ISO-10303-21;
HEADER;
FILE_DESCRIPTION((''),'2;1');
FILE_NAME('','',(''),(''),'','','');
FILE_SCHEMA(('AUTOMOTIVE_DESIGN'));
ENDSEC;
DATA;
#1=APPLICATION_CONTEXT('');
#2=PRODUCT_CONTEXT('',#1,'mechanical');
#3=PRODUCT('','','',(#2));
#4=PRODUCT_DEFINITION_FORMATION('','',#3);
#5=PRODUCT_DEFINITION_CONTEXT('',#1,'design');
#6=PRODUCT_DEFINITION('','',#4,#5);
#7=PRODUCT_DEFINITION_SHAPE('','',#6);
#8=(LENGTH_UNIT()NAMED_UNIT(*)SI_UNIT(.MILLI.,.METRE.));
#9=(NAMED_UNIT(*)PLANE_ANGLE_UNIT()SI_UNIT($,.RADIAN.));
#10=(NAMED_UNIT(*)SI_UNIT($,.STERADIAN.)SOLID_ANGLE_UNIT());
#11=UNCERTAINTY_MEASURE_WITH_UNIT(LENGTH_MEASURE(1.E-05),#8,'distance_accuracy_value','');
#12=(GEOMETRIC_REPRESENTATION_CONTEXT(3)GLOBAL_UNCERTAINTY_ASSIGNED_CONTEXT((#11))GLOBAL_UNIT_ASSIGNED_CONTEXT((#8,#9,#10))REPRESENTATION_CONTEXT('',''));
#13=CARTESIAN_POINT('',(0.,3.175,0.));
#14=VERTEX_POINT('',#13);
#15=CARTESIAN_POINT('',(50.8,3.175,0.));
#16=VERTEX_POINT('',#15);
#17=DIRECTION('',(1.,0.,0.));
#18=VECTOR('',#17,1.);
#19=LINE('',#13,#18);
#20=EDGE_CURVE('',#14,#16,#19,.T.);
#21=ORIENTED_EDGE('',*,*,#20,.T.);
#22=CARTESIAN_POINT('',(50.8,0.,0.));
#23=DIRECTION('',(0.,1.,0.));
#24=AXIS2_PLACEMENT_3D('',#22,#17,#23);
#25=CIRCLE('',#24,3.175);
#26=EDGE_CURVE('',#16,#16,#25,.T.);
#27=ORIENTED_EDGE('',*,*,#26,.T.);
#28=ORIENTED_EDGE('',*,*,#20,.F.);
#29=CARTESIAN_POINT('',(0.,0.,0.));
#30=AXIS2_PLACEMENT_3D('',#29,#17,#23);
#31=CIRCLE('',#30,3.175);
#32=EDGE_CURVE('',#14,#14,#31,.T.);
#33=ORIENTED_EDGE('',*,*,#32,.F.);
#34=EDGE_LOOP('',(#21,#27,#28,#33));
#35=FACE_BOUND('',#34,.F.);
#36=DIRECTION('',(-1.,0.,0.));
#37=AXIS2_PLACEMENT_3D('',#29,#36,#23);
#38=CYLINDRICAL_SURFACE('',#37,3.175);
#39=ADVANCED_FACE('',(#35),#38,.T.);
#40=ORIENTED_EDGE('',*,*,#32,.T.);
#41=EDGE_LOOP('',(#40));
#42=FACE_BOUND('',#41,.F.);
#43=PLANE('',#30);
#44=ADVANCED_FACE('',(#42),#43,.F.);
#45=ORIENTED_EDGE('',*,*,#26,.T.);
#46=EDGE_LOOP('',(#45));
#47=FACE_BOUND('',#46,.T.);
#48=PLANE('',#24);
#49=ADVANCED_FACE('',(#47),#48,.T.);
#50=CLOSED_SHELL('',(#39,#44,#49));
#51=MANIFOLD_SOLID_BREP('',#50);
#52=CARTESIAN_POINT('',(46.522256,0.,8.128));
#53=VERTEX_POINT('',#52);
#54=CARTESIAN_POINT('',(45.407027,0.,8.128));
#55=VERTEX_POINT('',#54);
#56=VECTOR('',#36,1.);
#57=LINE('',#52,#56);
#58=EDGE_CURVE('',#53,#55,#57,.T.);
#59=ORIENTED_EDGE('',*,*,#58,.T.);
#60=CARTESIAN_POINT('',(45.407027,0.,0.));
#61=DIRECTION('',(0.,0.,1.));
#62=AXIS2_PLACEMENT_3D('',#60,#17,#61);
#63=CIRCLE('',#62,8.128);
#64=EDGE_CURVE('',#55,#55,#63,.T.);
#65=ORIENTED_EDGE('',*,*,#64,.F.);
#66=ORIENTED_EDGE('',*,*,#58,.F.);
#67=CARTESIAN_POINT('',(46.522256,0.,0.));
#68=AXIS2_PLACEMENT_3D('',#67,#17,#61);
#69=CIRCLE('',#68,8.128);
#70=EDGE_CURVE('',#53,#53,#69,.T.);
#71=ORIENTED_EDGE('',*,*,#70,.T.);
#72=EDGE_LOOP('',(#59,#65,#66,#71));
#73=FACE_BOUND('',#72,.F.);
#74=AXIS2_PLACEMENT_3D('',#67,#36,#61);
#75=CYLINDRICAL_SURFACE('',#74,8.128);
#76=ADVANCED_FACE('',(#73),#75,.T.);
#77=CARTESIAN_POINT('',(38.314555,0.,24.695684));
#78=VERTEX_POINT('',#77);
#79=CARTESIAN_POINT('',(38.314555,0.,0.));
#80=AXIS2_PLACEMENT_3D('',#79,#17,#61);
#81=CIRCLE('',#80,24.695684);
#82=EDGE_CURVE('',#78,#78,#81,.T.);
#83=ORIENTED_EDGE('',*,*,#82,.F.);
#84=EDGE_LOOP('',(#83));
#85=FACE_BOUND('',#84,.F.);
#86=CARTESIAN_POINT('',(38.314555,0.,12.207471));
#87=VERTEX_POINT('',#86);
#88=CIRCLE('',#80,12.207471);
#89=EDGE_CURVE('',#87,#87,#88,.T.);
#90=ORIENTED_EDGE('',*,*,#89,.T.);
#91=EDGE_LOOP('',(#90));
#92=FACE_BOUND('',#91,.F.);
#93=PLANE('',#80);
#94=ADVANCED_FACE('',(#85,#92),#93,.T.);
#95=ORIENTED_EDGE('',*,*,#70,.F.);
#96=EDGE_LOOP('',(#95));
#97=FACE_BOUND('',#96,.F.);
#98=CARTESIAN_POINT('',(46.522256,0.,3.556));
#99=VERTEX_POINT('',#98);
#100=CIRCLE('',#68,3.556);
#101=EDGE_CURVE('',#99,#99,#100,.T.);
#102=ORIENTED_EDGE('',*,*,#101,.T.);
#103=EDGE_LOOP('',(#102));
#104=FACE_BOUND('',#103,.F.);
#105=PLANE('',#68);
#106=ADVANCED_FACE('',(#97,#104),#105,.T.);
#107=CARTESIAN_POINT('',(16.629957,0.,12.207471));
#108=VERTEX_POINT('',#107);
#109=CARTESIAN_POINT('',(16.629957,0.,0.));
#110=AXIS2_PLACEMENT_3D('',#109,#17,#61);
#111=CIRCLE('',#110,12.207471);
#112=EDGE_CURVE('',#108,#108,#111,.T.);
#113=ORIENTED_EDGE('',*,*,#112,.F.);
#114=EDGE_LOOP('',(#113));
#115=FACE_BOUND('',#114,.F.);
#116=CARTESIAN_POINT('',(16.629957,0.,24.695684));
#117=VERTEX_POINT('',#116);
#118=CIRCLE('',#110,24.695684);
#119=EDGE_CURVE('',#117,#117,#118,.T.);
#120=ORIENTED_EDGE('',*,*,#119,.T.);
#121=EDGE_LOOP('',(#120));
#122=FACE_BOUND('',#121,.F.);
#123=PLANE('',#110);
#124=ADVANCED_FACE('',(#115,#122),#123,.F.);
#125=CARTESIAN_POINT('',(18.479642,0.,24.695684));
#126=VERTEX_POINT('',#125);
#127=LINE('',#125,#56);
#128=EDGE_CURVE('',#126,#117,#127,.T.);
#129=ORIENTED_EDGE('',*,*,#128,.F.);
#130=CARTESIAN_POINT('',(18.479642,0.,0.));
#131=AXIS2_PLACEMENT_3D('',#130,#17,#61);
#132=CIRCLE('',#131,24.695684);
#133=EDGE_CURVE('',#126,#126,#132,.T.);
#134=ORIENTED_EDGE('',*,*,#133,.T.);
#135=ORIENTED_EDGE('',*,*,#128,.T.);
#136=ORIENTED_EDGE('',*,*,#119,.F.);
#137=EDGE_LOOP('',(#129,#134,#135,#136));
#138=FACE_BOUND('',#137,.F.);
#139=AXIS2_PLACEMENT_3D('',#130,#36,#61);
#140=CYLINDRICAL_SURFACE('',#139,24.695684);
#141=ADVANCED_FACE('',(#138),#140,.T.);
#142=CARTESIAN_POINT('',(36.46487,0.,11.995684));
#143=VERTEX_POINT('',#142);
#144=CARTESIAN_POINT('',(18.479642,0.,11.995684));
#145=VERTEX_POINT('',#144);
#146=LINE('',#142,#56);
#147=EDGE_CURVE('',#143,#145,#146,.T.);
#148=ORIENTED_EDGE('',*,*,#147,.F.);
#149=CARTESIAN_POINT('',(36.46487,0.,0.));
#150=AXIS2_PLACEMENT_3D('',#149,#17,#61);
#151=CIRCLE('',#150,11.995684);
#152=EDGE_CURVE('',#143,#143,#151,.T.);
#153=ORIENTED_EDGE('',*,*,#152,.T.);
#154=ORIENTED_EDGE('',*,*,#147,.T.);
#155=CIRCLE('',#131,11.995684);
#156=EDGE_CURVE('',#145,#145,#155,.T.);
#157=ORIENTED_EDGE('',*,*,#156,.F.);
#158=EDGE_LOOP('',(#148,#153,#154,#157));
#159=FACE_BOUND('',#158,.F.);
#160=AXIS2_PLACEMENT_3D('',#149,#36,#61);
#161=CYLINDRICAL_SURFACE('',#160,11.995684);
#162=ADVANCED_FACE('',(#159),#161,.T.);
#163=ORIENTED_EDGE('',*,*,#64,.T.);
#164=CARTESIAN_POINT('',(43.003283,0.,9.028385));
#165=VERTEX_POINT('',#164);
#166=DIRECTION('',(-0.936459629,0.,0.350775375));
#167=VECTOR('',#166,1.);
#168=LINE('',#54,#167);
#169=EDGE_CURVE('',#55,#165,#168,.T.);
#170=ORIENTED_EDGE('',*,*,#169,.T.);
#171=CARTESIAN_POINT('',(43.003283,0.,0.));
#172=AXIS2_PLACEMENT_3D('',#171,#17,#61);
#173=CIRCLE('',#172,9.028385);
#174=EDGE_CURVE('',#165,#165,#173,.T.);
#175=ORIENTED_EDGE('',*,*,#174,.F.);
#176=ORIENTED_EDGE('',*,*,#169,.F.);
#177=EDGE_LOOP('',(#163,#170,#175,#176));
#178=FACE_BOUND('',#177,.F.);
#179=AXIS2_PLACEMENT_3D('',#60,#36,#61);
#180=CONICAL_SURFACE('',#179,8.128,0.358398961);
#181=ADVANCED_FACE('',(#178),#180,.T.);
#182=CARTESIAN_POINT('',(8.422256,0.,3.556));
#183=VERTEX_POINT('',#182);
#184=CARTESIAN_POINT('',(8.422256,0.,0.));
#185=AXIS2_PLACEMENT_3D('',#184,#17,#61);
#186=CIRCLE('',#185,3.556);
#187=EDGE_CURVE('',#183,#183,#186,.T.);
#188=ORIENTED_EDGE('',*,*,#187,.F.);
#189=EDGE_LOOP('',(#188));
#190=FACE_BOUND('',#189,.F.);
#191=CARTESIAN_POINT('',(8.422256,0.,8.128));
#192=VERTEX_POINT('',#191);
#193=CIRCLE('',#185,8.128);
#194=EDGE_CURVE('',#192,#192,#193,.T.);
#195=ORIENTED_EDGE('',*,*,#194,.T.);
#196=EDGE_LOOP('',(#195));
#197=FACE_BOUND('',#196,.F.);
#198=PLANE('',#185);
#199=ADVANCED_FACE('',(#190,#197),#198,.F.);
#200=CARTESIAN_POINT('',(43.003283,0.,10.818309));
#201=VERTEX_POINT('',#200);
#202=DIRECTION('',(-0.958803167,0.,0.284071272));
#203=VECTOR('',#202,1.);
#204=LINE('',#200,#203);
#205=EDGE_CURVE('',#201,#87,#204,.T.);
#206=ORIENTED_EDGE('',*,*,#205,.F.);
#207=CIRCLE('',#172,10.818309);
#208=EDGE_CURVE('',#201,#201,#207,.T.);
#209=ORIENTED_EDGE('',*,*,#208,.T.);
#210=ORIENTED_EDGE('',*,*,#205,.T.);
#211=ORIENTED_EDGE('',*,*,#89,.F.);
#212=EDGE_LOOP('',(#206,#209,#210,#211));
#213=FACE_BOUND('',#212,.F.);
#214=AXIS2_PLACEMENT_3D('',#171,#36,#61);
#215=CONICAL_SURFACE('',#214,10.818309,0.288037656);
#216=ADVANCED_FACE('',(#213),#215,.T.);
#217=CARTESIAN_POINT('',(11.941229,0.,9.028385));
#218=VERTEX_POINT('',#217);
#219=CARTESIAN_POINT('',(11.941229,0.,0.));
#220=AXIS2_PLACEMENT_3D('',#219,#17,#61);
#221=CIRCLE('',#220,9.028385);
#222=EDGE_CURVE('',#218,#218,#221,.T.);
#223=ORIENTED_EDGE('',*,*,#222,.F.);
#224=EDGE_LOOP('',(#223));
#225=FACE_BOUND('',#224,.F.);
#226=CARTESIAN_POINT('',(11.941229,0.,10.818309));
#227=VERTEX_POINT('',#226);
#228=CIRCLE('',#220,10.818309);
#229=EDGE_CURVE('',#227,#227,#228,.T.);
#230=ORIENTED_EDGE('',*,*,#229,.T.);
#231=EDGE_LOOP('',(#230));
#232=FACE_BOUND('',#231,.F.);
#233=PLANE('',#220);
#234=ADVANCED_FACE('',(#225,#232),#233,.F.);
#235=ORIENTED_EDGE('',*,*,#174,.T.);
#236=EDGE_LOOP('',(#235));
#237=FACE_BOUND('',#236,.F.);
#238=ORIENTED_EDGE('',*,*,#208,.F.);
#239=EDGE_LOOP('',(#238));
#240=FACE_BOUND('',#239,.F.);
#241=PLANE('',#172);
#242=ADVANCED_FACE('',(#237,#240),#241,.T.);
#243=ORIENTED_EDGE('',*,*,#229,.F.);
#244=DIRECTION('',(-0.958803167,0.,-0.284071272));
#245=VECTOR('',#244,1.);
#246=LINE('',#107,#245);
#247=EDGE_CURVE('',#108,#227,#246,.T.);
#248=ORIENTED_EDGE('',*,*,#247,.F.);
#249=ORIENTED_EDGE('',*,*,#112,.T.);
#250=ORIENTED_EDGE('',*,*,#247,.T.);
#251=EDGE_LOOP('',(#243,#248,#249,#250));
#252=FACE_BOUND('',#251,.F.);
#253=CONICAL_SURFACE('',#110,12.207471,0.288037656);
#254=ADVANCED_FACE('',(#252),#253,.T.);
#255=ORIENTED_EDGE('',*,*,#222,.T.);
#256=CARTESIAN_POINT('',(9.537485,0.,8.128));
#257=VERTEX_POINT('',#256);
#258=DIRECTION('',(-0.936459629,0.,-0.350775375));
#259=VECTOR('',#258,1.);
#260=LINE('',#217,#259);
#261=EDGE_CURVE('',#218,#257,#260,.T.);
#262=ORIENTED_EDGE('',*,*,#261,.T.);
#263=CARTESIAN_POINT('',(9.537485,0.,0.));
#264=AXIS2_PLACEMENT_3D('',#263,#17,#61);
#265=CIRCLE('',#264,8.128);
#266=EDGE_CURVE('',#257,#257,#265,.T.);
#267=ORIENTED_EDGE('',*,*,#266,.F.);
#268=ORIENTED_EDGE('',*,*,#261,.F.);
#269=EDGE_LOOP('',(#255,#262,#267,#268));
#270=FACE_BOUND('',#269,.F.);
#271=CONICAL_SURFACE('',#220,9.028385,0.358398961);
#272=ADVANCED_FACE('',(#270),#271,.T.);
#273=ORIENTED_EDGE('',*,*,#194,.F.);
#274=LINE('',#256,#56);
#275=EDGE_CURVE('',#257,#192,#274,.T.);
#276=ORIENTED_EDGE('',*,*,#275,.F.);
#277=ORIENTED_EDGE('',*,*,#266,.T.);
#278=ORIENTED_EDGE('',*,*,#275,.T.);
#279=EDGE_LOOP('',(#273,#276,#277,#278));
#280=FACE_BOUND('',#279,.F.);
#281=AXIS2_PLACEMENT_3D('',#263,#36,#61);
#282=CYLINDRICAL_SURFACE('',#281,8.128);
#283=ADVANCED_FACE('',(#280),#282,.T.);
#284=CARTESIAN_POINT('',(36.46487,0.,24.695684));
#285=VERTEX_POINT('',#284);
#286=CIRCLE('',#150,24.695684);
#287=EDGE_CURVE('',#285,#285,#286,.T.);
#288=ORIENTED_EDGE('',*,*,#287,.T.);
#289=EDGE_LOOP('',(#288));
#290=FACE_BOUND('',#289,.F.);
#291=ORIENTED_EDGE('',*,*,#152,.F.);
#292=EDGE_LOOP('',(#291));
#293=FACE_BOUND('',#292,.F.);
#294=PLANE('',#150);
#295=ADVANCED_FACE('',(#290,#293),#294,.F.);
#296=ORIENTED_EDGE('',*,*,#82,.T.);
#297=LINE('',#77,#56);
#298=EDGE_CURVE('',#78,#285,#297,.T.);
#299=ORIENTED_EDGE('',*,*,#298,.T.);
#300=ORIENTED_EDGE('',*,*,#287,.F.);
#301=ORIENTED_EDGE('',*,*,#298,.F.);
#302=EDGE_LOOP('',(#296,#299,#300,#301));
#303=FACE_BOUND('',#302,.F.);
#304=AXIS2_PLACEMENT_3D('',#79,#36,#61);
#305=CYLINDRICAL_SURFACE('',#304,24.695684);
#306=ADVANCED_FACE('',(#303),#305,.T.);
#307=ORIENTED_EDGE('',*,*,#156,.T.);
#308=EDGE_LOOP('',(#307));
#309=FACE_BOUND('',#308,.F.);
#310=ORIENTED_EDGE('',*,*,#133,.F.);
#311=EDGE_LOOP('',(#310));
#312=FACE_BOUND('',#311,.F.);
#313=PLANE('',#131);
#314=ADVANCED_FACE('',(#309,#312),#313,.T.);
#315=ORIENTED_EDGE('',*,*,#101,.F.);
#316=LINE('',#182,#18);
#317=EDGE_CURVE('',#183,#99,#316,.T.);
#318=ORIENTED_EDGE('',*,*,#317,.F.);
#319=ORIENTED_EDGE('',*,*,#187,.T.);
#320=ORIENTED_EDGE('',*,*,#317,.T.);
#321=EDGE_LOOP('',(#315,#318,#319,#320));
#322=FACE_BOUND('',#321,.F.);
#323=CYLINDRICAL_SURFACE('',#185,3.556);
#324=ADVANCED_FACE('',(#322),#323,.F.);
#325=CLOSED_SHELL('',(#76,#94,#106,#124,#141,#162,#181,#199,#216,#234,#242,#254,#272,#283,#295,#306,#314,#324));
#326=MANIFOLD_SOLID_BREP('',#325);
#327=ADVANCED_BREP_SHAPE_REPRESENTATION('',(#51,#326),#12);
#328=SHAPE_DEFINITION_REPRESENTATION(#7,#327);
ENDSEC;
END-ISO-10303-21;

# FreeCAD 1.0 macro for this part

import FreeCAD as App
import Part
import Sketcher

V = App.Vector
Q = App.Units.Quantity


def add_polygon(sketch, points):
    """Adds a closed chain of lines whose ends are joined by coincident constraints."""
    first, n = sketch.GeometryCount, len(points)
    for a, b in zip(points, points[1:] + points[:1]):
        sketch.addGeometry(Part.LineSegment(App.Vector(*a, 0), App.Vector(*b, 0)), False)
    for i in range(n):
        sketch.addConstraint(Sketcher.Constraint("Coincident", first + i, 2, first + (i + 1) % n, 1))

doc = App.newDocument("Part")
body = doc.addObject("PartDesign::Body", "Body")

sketch1 = doc.addObject("Sketcher::SketchObject", "Sketch")
body.addObject(sketch1)
sketch1.AttachmentSupport = (doc.YZ_Plane, [""])
sketch1.MapMode = "FlatFace"
sketch1.addGeometry(Part.Circle(V(0, 0, 0), V(0, 0, 1), 3.2), False)
sketch1.addConstraint([
    Sketcher.Constraint("Coincident", 0, 3, -1, 1),
    Sketcher.Constraint("Diameter", 0, Q("0.25 in")),
])
pad1 = doc.addObject("PartDesign::Pad", "Pad")
body.addObject(pad1)
pad1.Profile = sketch1
pad1.Length = Q("2 in")
body2 = doc.addObject("PartDesign::Body", "Body001")

sketch2 = doc.addObject("Sketcher::SketchObject", "Sketch001")
body2.addObject(sketch2)
sketch2.AttachmentSupport = (doc.getObject("XZ_Plane001"), [""])
sketch2.MapMode = "FlatFace"
add_polygon(sketch2, [(8.4, 8.1), (8.4, 3.6), (46.5, 3.6), (46.5, 8.1), (45.4, 8.1), (43, 9), (43, 10.8), (38.3, 12.2), (38.3, 24.7), (36.5, 24.7), (36.5, 12), (18.5, 12), (18.5, 24.7), (16.6, 24.7), (16.6, 12.2), (11.9, 10.8), (11.9, 9), (9.5, 8.1)])
sketch2.addConstraint([
    Sketcher.Constraint("Vertical", 0),
    Sketcher.Constraint("Horizontal", 1),
    Sketcher.Constraint("Vertical", 2),
    Sketcher.Constraint("Horizontal", 3),
    Sketcher.Constraint("Vertical", 5),
    Sketcher.Constraint("Vertical", 7),
    Sketcher.Constraint("Horizontal", 8),
    Sketcher.Constraint("Vertical", 9),
    Sketcher.Constraint("Horizontal", 10),
    Sketcher.Constraint("Vertical", 11),
    Sketcher.Constraint("Horizontal", 12),
    Sketcher.Constraint("Vertical", 13),
    Sketcher.Constraint("Vertical", 15),
    Sketcher.Constraint("Horizontal", 17),
    Sketcher.Constraint("Horizontal", 8, 2, 11, 2),
    Sketcher.Constraint("Horizontal", 6, 2, 13, 2),
    Sketcher.Constraint("Horizontal", 5, 2, 14, 2),
    Sketcher.Constraint("Horizontal", 4, 2, 15, 2),
    Sketcher.Constraint("Horizontal", 3, 2, 16, 2),
    Sketcher.Constraint("Equal", 8, 12),
    Sketcher.Constraint("Equal", 3, 17),
    Sketcher.Constraint("Equal", 6, 14),
    Sketcher.Constraint("Equal", 4, 16),
    Sketcher.Constraint("DistanceX", 1, 1, 1, 2, Q("1.5 in")),
    Sketcher.Constraint("DistanceY", 9, 2, 9, 1, Q("0.5 in")),
    Sketcher.Constraint("DistanceY", 0, 2, 0, 1, Q("0.18 in")),
    Sketcher.Constraint("DistanceY", -1, 1, 0, 2, Q("0.14 in")),
    Sketcher.Constraint("DistanceX", 3, 2, 3, 1, Q("1.115229 mm")),
    Sketcher.Constraint("DistanceX", 6, 2, 2, 2, Q("8.207701 mm")),
    Sketcher.Constraint("DistanceY", 4, 2, 7, 2, Q("15.667299 mm")),
    Sketcher.Constraint("Distance", 6, Q("4.890188 mm")),
    Sketcher.Constraint("DistanceX", 8, 2, 8, 1, Q("1.849685 mm")),
    Sketcher.Constraint("DistanceY", 5, 1, 5, 2, Q("1.789924 mm")),
    Sketcher.Constraint("DistanceY", 7, 1, 7, 2, Q("12.488213 mm")),
    Sketcher.Constraint("DistanceY", -1, 1, 5, 2, Q("10.818309 mm")),
    Sketcher.Constraint("DistanceX", -1, 1, 8, 2, Q("36.46487 mm")),
])
revolution = doc.addObject("PartDesign::Revolution", "Revolution")
body2.addObject(revolution)
revolution.Profile = sketch2
revolution.ReferenceAxis = (sketch2, ["H_Axis"])
revolution.Angle = 360

doc.recompute()
